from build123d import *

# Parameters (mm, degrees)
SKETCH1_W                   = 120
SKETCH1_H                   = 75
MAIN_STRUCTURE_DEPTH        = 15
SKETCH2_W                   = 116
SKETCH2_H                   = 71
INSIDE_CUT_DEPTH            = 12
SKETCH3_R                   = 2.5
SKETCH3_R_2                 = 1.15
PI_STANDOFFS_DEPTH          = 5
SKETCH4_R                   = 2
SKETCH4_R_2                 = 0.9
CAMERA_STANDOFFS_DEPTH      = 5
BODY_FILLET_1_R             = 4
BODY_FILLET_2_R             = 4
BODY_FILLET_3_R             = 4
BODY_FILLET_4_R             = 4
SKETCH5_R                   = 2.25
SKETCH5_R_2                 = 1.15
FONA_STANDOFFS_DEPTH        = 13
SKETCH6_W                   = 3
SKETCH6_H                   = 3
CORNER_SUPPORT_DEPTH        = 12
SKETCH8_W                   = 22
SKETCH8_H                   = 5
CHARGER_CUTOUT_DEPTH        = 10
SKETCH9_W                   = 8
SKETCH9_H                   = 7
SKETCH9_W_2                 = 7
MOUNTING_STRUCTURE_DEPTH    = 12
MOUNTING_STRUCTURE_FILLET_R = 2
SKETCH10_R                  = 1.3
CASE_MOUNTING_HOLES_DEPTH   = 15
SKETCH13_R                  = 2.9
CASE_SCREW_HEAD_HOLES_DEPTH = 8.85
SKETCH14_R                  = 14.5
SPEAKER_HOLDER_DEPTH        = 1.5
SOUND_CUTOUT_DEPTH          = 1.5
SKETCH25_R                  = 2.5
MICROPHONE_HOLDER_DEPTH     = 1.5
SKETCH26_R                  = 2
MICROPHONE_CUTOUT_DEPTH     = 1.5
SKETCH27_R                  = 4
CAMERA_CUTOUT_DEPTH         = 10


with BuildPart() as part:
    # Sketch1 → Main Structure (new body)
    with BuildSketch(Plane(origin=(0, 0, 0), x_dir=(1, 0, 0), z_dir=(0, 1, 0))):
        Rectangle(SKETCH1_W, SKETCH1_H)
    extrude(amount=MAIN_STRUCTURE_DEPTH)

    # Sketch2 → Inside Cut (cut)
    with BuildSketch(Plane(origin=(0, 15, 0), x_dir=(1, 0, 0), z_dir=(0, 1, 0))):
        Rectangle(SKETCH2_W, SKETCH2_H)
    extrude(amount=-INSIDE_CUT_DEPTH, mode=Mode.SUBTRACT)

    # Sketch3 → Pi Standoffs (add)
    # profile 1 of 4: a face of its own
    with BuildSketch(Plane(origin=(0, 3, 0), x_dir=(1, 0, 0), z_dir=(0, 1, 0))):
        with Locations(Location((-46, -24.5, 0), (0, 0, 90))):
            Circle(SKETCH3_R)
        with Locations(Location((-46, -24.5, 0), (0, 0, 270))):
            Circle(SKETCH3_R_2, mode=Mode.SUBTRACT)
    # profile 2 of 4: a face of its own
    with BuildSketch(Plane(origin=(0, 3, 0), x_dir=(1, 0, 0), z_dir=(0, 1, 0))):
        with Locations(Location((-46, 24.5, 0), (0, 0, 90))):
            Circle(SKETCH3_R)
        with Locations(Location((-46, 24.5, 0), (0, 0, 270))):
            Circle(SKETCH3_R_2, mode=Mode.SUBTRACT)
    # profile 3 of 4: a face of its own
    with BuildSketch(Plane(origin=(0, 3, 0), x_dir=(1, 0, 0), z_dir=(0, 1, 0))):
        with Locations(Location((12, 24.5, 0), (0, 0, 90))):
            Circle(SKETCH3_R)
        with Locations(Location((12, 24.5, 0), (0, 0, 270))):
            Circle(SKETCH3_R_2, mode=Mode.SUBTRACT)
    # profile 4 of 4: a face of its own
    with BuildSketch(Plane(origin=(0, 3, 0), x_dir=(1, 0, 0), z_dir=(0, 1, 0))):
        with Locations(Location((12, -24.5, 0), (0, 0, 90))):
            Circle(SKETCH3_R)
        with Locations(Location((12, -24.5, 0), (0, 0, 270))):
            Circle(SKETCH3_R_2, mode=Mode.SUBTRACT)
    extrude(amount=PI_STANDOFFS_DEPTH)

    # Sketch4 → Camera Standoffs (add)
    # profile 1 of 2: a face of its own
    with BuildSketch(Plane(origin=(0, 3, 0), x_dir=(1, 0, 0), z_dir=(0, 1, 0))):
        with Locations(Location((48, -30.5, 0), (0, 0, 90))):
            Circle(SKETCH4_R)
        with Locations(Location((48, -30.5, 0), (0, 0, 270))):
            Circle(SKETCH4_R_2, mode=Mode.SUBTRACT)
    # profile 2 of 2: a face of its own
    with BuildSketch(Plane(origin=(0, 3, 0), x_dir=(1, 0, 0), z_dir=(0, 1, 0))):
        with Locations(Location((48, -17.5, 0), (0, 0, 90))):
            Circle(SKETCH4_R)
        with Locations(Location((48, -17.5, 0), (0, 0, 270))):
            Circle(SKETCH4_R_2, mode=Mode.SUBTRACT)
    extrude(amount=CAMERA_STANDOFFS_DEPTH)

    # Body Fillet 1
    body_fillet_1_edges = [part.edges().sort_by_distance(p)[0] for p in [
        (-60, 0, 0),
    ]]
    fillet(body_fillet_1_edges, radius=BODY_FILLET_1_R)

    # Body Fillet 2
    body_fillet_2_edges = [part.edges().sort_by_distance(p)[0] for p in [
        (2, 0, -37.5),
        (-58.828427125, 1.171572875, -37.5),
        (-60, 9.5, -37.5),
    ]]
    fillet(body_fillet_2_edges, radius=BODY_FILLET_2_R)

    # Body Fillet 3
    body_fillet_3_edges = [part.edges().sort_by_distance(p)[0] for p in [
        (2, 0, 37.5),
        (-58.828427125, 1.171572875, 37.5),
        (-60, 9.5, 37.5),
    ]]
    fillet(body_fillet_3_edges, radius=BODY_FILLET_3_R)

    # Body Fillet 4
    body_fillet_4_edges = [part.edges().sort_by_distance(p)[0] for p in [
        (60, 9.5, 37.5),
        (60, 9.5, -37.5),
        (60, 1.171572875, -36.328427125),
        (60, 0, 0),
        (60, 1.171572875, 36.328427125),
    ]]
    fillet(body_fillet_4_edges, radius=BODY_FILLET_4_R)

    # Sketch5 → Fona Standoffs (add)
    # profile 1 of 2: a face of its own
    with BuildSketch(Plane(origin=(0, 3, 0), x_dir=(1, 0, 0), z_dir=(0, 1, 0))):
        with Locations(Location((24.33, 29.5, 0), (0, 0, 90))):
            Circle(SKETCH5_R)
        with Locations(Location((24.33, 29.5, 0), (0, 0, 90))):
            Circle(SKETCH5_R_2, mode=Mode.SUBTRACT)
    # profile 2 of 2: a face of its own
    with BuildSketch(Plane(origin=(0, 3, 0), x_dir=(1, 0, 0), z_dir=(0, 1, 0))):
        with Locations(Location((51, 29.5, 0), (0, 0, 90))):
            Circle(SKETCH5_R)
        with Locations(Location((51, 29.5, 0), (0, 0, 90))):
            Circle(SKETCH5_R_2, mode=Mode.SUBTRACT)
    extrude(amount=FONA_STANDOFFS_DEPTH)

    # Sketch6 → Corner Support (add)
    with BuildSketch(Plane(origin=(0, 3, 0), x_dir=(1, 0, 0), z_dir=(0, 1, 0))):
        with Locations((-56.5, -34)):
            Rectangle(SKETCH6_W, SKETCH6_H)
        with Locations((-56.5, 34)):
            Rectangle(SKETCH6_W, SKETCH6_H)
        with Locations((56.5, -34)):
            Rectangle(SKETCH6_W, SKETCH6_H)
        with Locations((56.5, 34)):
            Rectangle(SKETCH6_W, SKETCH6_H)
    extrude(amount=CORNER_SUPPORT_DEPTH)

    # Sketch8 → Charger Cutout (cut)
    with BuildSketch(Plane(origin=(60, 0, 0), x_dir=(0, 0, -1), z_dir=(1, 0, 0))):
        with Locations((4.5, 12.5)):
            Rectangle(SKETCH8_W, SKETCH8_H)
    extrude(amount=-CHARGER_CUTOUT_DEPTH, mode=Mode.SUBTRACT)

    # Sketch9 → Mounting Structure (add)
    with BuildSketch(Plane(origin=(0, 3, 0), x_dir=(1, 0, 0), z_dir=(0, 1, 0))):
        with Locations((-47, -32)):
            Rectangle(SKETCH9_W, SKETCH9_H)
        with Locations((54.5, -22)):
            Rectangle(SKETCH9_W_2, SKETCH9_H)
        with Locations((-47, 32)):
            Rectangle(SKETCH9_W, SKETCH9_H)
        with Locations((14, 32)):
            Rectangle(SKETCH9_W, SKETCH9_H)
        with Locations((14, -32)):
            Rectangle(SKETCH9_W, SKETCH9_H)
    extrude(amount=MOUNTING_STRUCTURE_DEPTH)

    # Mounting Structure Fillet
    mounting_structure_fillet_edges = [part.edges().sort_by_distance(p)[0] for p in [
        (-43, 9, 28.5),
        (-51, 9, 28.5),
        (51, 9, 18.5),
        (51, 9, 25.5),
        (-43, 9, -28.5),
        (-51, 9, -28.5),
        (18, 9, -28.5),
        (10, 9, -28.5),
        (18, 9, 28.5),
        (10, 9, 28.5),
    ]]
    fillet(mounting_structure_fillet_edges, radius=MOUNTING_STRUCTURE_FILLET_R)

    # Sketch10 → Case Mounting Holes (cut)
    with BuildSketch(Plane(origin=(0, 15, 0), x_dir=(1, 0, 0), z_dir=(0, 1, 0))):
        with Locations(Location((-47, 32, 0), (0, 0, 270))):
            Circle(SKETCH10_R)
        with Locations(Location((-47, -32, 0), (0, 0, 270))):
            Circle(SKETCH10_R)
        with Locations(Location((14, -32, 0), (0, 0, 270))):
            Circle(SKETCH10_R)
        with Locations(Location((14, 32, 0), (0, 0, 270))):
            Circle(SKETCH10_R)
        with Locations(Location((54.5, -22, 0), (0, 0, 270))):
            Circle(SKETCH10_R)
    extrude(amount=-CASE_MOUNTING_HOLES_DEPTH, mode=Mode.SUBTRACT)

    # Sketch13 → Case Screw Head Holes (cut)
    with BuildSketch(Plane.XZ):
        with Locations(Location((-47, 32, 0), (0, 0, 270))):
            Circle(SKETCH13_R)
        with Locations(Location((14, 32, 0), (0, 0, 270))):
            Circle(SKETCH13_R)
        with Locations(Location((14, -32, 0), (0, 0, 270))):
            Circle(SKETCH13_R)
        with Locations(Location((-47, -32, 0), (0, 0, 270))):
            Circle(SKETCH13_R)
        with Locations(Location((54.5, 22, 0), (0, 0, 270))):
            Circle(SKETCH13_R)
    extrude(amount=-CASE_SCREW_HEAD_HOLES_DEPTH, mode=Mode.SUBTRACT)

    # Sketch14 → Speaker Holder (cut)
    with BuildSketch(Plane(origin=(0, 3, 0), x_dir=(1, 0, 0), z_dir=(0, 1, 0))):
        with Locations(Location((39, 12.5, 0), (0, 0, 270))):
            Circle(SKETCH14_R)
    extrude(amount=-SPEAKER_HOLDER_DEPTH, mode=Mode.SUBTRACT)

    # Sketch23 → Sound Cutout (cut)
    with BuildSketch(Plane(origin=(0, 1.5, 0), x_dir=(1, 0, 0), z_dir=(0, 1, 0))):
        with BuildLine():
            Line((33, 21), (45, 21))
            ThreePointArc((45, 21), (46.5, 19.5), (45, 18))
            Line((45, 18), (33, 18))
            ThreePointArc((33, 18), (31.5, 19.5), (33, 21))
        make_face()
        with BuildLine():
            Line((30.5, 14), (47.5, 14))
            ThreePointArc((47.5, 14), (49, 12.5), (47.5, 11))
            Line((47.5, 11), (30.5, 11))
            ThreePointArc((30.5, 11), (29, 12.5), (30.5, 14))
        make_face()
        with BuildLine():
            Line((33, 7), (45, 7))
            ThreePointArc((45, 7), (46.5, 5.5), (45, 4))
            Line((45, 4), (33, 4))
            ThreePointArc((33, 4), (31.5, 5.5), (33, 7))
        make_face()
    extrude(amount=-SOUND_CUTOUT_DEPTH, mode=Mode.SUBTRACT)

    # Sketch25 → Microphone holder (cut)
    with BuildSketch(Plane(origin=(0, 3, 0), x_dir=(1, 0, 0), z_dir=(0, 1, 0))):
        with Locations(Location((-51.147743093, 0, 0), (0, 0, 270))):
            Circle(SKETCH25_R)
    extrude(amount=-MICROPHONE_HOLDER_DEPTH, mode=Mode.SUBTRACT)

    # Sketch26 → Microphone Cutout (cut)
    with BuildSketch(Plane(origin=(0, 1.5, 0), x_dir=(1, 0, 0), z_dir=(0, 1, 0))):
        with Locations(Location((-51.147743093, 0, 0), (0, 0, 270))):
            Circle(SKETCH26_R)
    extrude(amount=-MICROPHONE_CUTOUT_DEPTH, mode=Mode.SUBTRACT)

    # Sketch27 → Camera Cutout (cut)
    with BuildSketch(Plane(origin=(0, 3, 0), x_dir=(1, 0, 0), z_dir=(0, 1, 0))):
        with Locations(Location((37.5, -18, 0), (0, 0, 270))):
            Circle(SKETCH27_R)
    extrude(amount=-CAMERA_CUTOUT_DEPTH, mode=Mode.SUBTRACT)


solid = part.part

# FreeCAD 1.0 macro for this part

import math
import FreeCAD as App
import Part
import Sketcher
from FreeCAD import Vector
Q = App.Units.Quantity


def edges_at(feature, points):
    """Names of the edges that pass closest to the given points."""
    edges = feature.Shape.Edges
    near = lambda p: min(range(len(edges)), key=lambda i: edges[i].distToShape(Part.Vertex(*p))[0])
    return sorted({f"Edge{near(p) + 1}" for p in points})

doc = App.newDocument("Part")
body = doc.addObject("PartDesign::Body", "Body")

# Sketch on XZ plane
sketch1 = body.newObject("Sketcher::SketchObject", "Sketch")
sketch1.AttachmentSupport = (doc.getObject("XZ_Plane"), [""])
sketch1.MapMode = "FlatFace"
sketch1.addGeometry([
    Part.LineSegment(Vector(-60, -38, 0), Vector(-60, 38, 0)),
    Part.LineSegment(Vector(-60, 38, 0), Vector(60, 38, 0)),
    Part.LineSegment(Vector(60, 38, 0), Vector(60, -38, 0)),
    Part.LineSegment(Vector(60, -38, 0), Vector(-60, -38, 0)),
], False)
sketch1.addConstraint([
    Sketcher.Constraint("Coincident", 0, 2, 1, 1),
    Sketcher.Constraint("Coincident", 1, 2, 2, 1),
    Sketcher.Constraint("Coincident", 2, 2, 3, 1),
    Sketcher.Constraint("Coincident", 3, 2, 0, 1),
    Sketcher.Constraint("Vertical", 0),
    Sketcher.Constraint("Horizontal", 1),
    Sketcher.Constraint("Vertical", 2),
    Sketcher.Constraint("Horizontal", 3),
    Sketcher.Constraint("Symmetric", 0, 2, 2, 2, -1, 1),
    Sketcher.Constraint("DistanceX", 1, 1, 1, 2, Q("120 mm")),
    Sketcher.Constraint("DistanceY", 0, 1, 0, 2, Q("75 mm")),
])
pad1 = body.newObject("PartDesign::Pad", "Pad")
pad1.Profile = sketch1
pad1.Length = 15
pad1.Reversed = True

# Sketch on XZ plane
sketch2 = body.newObject("Sketcher::SketchObject", "Sketch001")
sketch2.AttachmentSupport = (doc.getObject("XZ_Plane"), [""])
sketch2.MapMode = "FlatFace"
sketch2.AttachmentOffset = App.Placement(Vector(0, 0, -15), App.Rotation())
sketch2.addGeometry([
    Part.LineSegment(Vector(-58, -36, 0), Vector(-58, 36, 0)),
    Part.LineSegment(Vector(-58, 36, 0), Vector(58, 36, 0)),
    Part.LineSegment(Vector(58, 36, 0), Vector(58, -36, 0)),
    Part.LineSegment(Vector(58, -36, 0), Vector(-58, -36, 0)),
], False)
sketch2.addConstraint([
    Sketcher.Constraint("Coincident", 0, 2, 1, 1),
    Sketcher.Constraint("Coincident", 1, 2, 2, 1),
    Sketcher.Constraint("Coincident", 2, 2, 3, 1),
    Sketcher.Constraint("Coincident", 3, 2, 0, 1),
    Sketcher.Constraint("Vertical", 0),
    Sketcher.Constraint("Horizontal", 1),
    Sketcher.Constraint("Vertical", 2),
    Sketcher.Constraint("Horizontal", 3),
    Sketcher.Constraint("Symmetric", 0, 2, 2, 2, -1, 1),
    Sketcher.Constraint("DistanceX", 1, 1, 1, 2, Q("116 mm")),
    Sketcher.Constraint("DistanceY", 0, 1, 0, 2, Q("71 mm")),
])
pocket1 = body.newObject("PartDesign::Pocket", "Pocket")
pocket1.Profile = sketch2
pocket1.Length = 12
pocket1.Reversed = True

# Sketch on XZ plane
sketch3 = body.newObject("Sketcher::SketchObject", "Sketch002")
sketch3.AttachmentSupport = (doc.getObject("XZ_Plane"), [""])
sketch3.MapMode = "FlatFace"
sketch3.AttachmentOffset = App.Placement(Vector(0, 0, -3), App.Rotation())
sketch3.addGeometry([
    Part.Circle(Vector(-46, 24.5, 0), Vector(0, 0, 1), 2.5),  # 0
    Part.Circle(Vector(-46, 24.5, 0), Vector(0, 0, 1), 1.1),  # 1
    Part.Circle(Vector(-46, -24.5, 0), Vector(0, 0, 1), 2.5),  # 2
    Part.Circle(Vector(-46, -24.5, 0), Vector(0, 0, 1), 1.1),  # 3
    Part.Circle(Vector(12, -24.5, 0), Vector(0, 0, 1), 2.5),  # 4
    Part.Circle(Vector(12, -24.5, 0), Vector(0, 0, 1), 1.1),  # 5
    Part.Circle(Vector(12, 24.5, 0), Vector(0, 0, 1), 2.5),  # 6
    Part.Circle(Vector(12, 24.5, 0), Vector(0, 0, 1), 1.1),  # 7
], False)
sketch3.addConstraint([
    Sketcher.Constraint("Coincident", 1, 3, 0, 3),
    Sketcher.Constraint("Coincident", 3, 3, 2, 3),
    Sketcher.Constraint("Coincident", 5, 3, 4, 3),
    Sketcher.Constraint("Coincident", 7, 3, 6, 3),
    Sketcher.Constraint("Equal", 0, 2),
    Sketcher.Constraint("Equal", 1, 3),
    Sketcher.Constraint("Equal", 2, 4),
    Sketcher.Constraint("Equal", 3, 5),
    Sketcher.Constraint("Equal", 4, 6),
    Sketcher.Constraint("Equal", 5, 7),
    Sketcher.Constraint("Symmetric", 0, 3, 2, 3, -1),
    Sketcher.Constraint("Symmetric", 4, 3, 6, 3, -1),
    Sketcher.Constraint("Horizontal", 3, 3, 4, 3),
    Sketcher.Constraint("Diameter", 0, Q("5 mm")),
    Sketcher.Constraint("Diameter", 1, Q("2.3 mm")),
    Sketcher.Constraint("DistanceX", 0, 3, -1, 1, Q("46 mm")),
    Sketcher.Constraint("DistanceX", -1, 1, 4, 3, Q("12 mm")),
    Sketcher.Constraint("DistanceY", 2, 3, 0, 3, Q("49 mm")),
])
pad2 = body.newObject("PartDesign::Pad", "Pad001")
pad2.Profile = sketch3
pad2.Length = 5
pad2.Reversed = True

# Sketch on XZ plane
sketch4 = body.newObject("Sketcher::SketchObject", "Sketch003")
sketch4.AttachmentSupport = (doc.getObject("XZ_Plane"), [""])
sketch4.MapMode = "FlatFace"
sketch4.AttachmentOffset = App.Placement(Vector(0, 0, -3), App.Rotation())
sketch4.addGeometry([
    Part.Circle(Vector(48, 30.5, 0), Vector(0, 0, 1), 2),
    Part.Circle(Vector(48, 30.5, 0), Vector(0, 0, 1), 0.9),
    Part.Circle(Vector(48, 17.5, 0), Vector(0, 0, 1), 2),
    Part.Circle(Vector(48, 17.5, 0), Vector(0, 0, 1), 0.9),
], False)
sketch4.addConstraint([
    Sketcher.Constraint("Coincident", 1, 3, 0, 3),
    Sketcher.Constraint("Coincident", 3, 3, 2, 3),
    Sketcher.Constraint("Equal", 0, 2),
    Sketcher.Constraint("Equal", 1, 3),
    Sketcher.Constraint("Vertical", 1, 3, 2, 3),
    Sketcher.Constraint("Diameter", 0, Q("4 mm")),
    Sketcher.Constraint("Diameter", 1, Q("1.8 mm")),
    Sketcher.Constraint("DistanceX", -1, 1, 0, 3, Q("48 mm")),
    Sketcher.Constraint("DistanceY", 2, 3, 0, 3, Q("13 mm")),
    Sketcher.Constraint("DistanceY", -1, 1, 0, 3, Q("30.5 mm")),
])
pad3 = body.newObject("PartDesign::Pad", "Pad002")
pad3.Profile = sketch4
pad3.Length = 5
pad3.Reversed = True
doc.recompute()

fillet = body.newObject("PartDesign::Fillet", "Fillet")
fillet.Base = (pad3, edges_at(pad3, [(-60, 0, 0)]))
fillet.Radius = 4
doc.recompute()

fillet2 = body.newObject("PartDesign::Fillet", "Fillet001")
fillet2.Base = (fillet, edges_at(fillet, [(2, 0, -37.5), (-58.828, 1.172, -37.5), (-60, 9.5, -37.5)]))
fillet2.Radius = 4
doc.recompute()

fillet3 = body.newObject("PartDesign::Fillet", "Fillet002")
fillet3.Base = (fillet2, edges_at(fillet2, [(2, 0, 37.5), (-58.828, 1.172, 37.5), (-60, 9.5, 37.5)]))
fillet3.Radius = 4
doc.recompute()

fillet4 = body.newObject("PartDesign::Fillet", "Fillet003")
fillet4.Base = (fillet3, edges_at(fillet3, [
    (60, 9.5, 37.5),
    (60, 9.5, -37.5),
    (60, 1.172, -36.328),
    (60, 0, 0),
    (60, 1.172, 36.328),
]))
fillet4.Radius = 4

# Sketch on XZ plane
sketch5 = body.newObject("Sketcher::SketchObject", "Sketch004")
sketch5.AttachmentSupport = (doc.getObject("XZ_Plane"), [""])
sketch5.MapMode = "FlatFace"
sketch5.AttachmentOffset = App.Placement(Vector(0, 0, -3), App.Rotation())
sketch5.addGeometry([
    Part.Circle(Vector(24.3, -29.5, 0), Vector(0, 0, 1), 2.2),
    Part.Circle(Vector(24.3, -29.5, 0), Vector(0, 0, 1), 1.1),
    Part.Circle(Vector(51, -29.5, 0), Vector(0, 0, 1), 2.2),
    Part.Circle(Vector(51, -29.5, 0), Vector(0, 0, 1), 1.1),
], False)
sketch5.addConstraint([
    Sketcher.Constraint("Coincident", 1, 3, 0, 3),
    Sketcher.Constraint("Coincident", 3, 3, 2, 3),
    Sketcher.Constraint("Equal", 0, 2),
    Sketcher.Constraint("Equal", 1, 3),
    Sketcher.Constraint("Horizontal", 1, 3, 2, 3),
    Sketcher.Constraint("Diameter", 0, Q("4.5 mm")),
    Sketcher.Constraint("Diameter", 1, Q("2.3 mm")),
    Sketcher.Constraint("DistanceX", -1, 1, 2, 3, Q("51 mm")),
    Sketcher.Constraint("DistanceY", 0, 3, -1, 1, Q("29.5 mm")),
    Sketcher.Constraint("DistanceX", -1, 1, 0, 3, Q("24.33 mm")),
])
pad4 = body.newObject("PartDesign::Pad", "Pad003")
pad4.Profile = sketch5
pad4.Length = 13
pad4.Reversed = True

# Sketch on XZ plane
sketch6 = body.newObject("Sketcher::SketchObject", "Sketch005")
sketch6.AttachmentSupport = (doc.getObject("XZ_Plane"), [""])
sketch6.MapMode = "FlatFace"
sketch6.AttachmentOffset = App.Placement(Vector(0, 0, -3), App.Rotation())
sketch6.addGeometry([
    Part.LineSegment(Vector(-58, 32.5, 0), Vector(-58, 35.5, 0)),  # 0
    Part.LineSegment(Vector(-58, 35.5, 0), Vector(-55, 35.5, 0)),  # 1
    Part.LineSegment(Vector(-55, 35.5, 0), Vector(-55, 32.5, 0)),  # 2
    Part.LineSegment(Vector(-55, 32.5, 0), Vector(-58, 32.5, 0)),  # 3
    Part.LineSegment(Vector(-58, -35.5, 0), Vector(-58, -32.5, 0)),  # 4
    Part.LineSegment(Vector(-58, -32.5, 0), Vector(-55, -32.5, 0)),  # 5
    Part.LineSegment(Vector(-55, -32.5, 0), Vector(-55, -35.5, 0)),  # 6
    Part.LineSegment(Vector(-55, -35.5, 0), Vector(-58, -35.5, 0)),  # 7
    Part.LineSegment(Vector(55, 32.5, 0), Vector(55, 35.5, 0)),  # 8
    Part.LineSegment(Vector(55, 35.5, 0), Vector(58, 35.5, 0)),  # 9
    Part.LineSegment(Vector(58, 35.5, 0), Vector(58, 32.5, 0)),  # 10
    Part.LineSegment(Vector(58, 32.5, 0), Vector(55, 32.5, 0)),  # 11
    Part.LineSegment(Vector(55, -35.5, 0), Vector(55, -32.5, 0)),  # 12
    Part.LineSegment(Vector(55, -32.5, 0), Vector(58, -32.5, 0)),  # 13
    Part.LineSegment(Vector(58, -32.5, 0), Vector(58, -35.5, 0)),  # 14
    Part.LineSegment(Vector(58, -35.5, 0), Vector(55, -35.5, 0)),  # 15
], False)
sketch6.addConstraint([
    Sketcher.Constraint("Coincident", 0, 2, 1, 1),
    Sketcher.Constraint("Coincident", 1, 2, 2, 1),
    Sketcher.Constraint("Coincident", 2, 2, 3, 1),
    Sketcher.Constraint("Coincident", 3, 2, 0, 1),
    Sketcher.Constraint("Coincident", 4, 2, 5, 1),
    Sketcher.Constraint("Coincident", 5, 2, 6, 1),
    Sketcher.Constraint("Coincident", 6, 2, 7, 1),
    Sketcher.Constraint("Coincident", 7, 2, 4, 1),
    Sketcher.Constraint("Coincident", 8, 2, 9, 1),
    Sketcher.Constraint("Coincident", 9, 2, 10, 1),
    Sketcher.Constraint("Coincident", 10, 2, 11, 1),
    Sketcher.Constraint("Coincident", 11, 2, 8, 1),
    Sketcher.Constraint("Coincident", 12, 2, 13, 1),
    Sketcher.Constraint("Coincident", 13, 2, 14, 1),
    Sketcher.Constraint("Coincident", 14, 2, 15, 1),
    Sketcher.Constraint("Coincident", 15, 2, 12, 1),
    Sketcher.Constraint("Vertical", 0),
    Sketcher.Constraint("Horizontal", 1),
    Sketcher.Constraint("Vertical", 2),
    Sketcher.Constraint("Horizontal", 3),
    Sketcher.Constraint("Vertical", 4),
    Sketcher.Constraint("Horizontal", 5),
    Sketcher.Constraint("Vertical", 6),
    Sketcher.Constraint("Horizontal", 7),
    Sketcher.Constraint("Vertical", 8),
    Sketcher.Constraint("Horizontal", 9),
    Sketcher.Constraint("Vertical", 10),
    Sketcher.Constraint("Horizontal", 11),
    Sketcher.Constraint("Vertical", 12),
    Sketcher.Constraint("Horizontal", 13),
    Sketcher.Constraint("Vertical", 14),
    Sketcher.Constraint("Horizontal", 15),
    Sketcher.Constraint("Symmetric", 6, 2, 8, 2, -1, 1),
    Sketcher.Constraint("Symmetric", 4, 2, 10, 2, -1, 1),
    Sketcher.Constraint("Symmetric", 2, 2, 12, 2, -1, 1),
    Sketcher.Constraint("Symmetric", 0, 2, 14, 2, -1, 1),
    Sketcher.Constraint("Symmetric", 1, 2, 8, 2, -2),
    Sketcher.Constraint("Symmetric", 3, 2, 10, 2, -2),
    Sketcher.Constraint("Equal", 15, 0),
    Sketcher.Constraint("DistanceX", 1, 1, 1, 2, Q("3 mm")),
    Sketcher.Constraint("DistanceX", 0, 2, -1, 1, Q("58 mm")),
    Sketcher.Constraint("DistanceY", 4, 2, 3, 2, Q("65 mm")),
])
pad5 = body.newObject("PartDesign::Pad", "Pad004")
pad5.Profile = sketch6
pad5.Length = 12
pad5.Reversed = True

# Sketch on YZ plane
sketch7 = body.newObject("Sketcher::SketchObject", "Sketch006")
sketch7.AttachmentSupport = (doc.getObject("YZ_Plane"), [""])
sketch7.MapMode = "FlatFace"
sketch7.AttachmentOffset = App.Placement(Vector(0, 0, 60), App.Rotation())
sketch7.addGeometry([
    Part.LineSegment(Vector(15, 6, 0), Vector(10, 6, 0)),
    Part.LineSegment(Vector(10, 6, 0), Vector(10, -16, 0)),
    Part.LineSegment(Vector(10, -16, 0), Vector(15, -16, 0)),
    Part.LineSegment(Vector(15, -16, 0), Vector(15, 6, 0)),
], False)
sketch7.addConstraint([
    Sketcher.Constraint("Coincident", 0, 2, 1, 1),
    Sketcher.Constraint("Coincident", 1, 2, 2, 1),
    Sketcher.Constraint("Coincident", 2, 2, 3, 1),
    Sketcher.Constraint("Coincident", 3, 2, 0, 1),
    Sketcher.Constraint("Horizontal", 0),
    Sketcher.Constraint("Vertical", 1),
    Sketcher.Constraint("Horizontal", 2),
    Sketcher.Constraint("Vertical", 3),
    Sketcher.Constraint("DistanceX", 0, 2, 0, 1, Q("5 mm")),
    Sketcher.Constraint("DistanceY", 1, 2, 1, 1, Q("22 mm")),
    Sketcher.Constraint("DistanceX", -1, 1, 0, 2, Q("10 mm")),
    Sketcher.Constraint("DistanceY", -1, 1, 0, 2, Q("6.5 mm")),
])
pocket2 = body.newObject("PartDesign::Pocket", "Pocket001")
pocket2.Profile = sketch7
pocket2.Length = 10

# Sketch on XZ plane
sketch8 = body.newObject("Sketcher::SketchObject", "Sketch007")
sketch8.AttachmentSupport = (doc.getObject("XZ_Plane"), [""])
sketch8.MapMode = "FlatFace"
sketch8.AttachmentOffset = App.Placement(Vector(0, 0, -3), App.Rotation())
sketch8.addGeometry([
    Part.LineSegment(Vector(-51, 28, 0), Vector(-51, 36, 0)),  # 0
    Part.LineSegment(Vector(-51, 36, 0), Vector(-43, 36, 0)),  # 1
    Part.LineSegment(Vector(-43, 36, 0), Vector(-43, 28, 0)),  # 2
    Part.LineSegment(Vector(-43, 28, 0), Vector(-51, 28, 0)),  # 3
    Part.LineSegment(Vector(51, 18, 0), Vector(51, 26, 0)),  # 4
    Part.LineSegment(Vector(51, 26, 0), Vector(58, 26, 0)),  # 5
    Part.LineSegment(Vector(58, 26, 0), Vector(58, 18, 0)),  # 6
    Part.LineSegment(Vector(58, 18, 0), Vector(51, 18, 0)),  # 7
    Part.LineSegment(Vector(-51, -36, 0), Vector(-51, -28, 0)),  # 8
    Part.LineSegment(Vector(-51, -28, 0), Vector(-43, -28, 0)),  # 9
    Part.LineSegment(Vector(-43, -28, 0), Vector(-43, -36, 0)),  # 10
    Part.LineSegment(Vector(-43, -36, 0), Vector(-51, -36, 0)),  # 11
    Part.LineSegment(Vector(10, -36, 0), Vector(10, -28, 0)),  # 12
    Part.LineSegment(Vector(10, -28, 0), Vector(18, -28, 0)),  # 13
    Part.LineSegment(Vector(18, -28, 0), Vector(18, -36, 0)),  # 14
    Part.LineSegment(Vector(18, -36, 0), Vector(10, -36, 0)),  # 15
    Part.LineSegment(Vector(10, 28, 0), Vector(10, 36, 0)),  # 16
    Part.LineSegment(Vector(10, 36, 0), Vector(18, 36, 0)),  # 17
    Part.LineSegment(Vector(18, 36, 0), Vector(18, 28, 0)),  # 18
    Part.LineSegment(Vector(18, 28, 0), Vector(10, 28, 0)),  # 19
], False)
sketch8.addConstraint([
    Sketcher.Constraint("Coincident", 0, 2, 1, 1),
    Sketcher.Constraint("Coincident", 1, 2, 2, 1),
    Sketcher.Constraint("Coincident", 2, 2, 3, 1),
    Sketcher.Constraint("Coincident", 3, 2, 0, 1),
    Sketcher.Constraint("Coincident", 4, 2, 5, 1),
    Sketcher.Constraint("Coincident", 5, 2, 6, 1),
    Sketcher.Constraint("Coincident", 6, 2, 7, 1),
    Sketcher.Constraint("Coincident", 7, 2, 4, 1),
    Sketcher.Constraint("Coincident", 8, 2, 9, 1),
    Sketcher.Constraint("Coincident", 9, 2, 10, 1),
    Sketcher.Constraint("Coincident", 10, 2, 11, 1),
    Sketcher.Constraint("Coincident", 11, 2, 8, 1),
    Sketcher.Constraint("Coincident", 12, 2, 13, 1),
    Sketcher.Constraint("Coincident", 13, 2, 14, 1),
    Sketcher.Constraint("Coincident", 14, 2, 15, 1),
    Sketcher.Constraint("Coincident", 15, 2, 12, 1),
    Sketcher.Constraint("Coincident", 16, 2, 17, 1),
    Sketcher.Constraint("Coincident", 17, 2, 18, 1),
    Sketcher.Constraint("Coincident", 18, 2, 19, 1),
    Sketcher.Constraint("Coincident", 19, 2, 16, 1),
    Sketcher.Constraint("Vertical", 0),
    Sketcher.Constraint("Horizontal", 1),
    Sketcher.Constraint("Vertical", 2),
    Sketcher.Constraint("Horizontal", 3),
    Sketcher.Constraint("Vertical", 4),
    Sketcher.Constraint("Horizontal", 5),
    Sketcher.Constraint("Vertical", 6),
    Sketcher.Constraint("Horizontal", 7),
    Sketcher.Constraint("Vertical", 8),
    Sketcher.Constraint("Horizontal", 9),
    Sketcher.Constraint("Vertical", 10),
    Sketcher.Constraint("Horizontal", 11),
    Sketcher.Constraint("Vertical", 12),
    Sketcher.Constraint("Horizontal", 13),
    Sketcher.Constraint("Vertical", 14),
    Sketcher.Constraint("Horizontal", 15),
    Sketcher.Constraint("Vertical", 16),
    Sketcher.Constraint("Horizontal", 17),
    Sketcher.Constraint("Vertical", 18),
    Sketcher.Constraint("Horizontal", 19),
    Sketcher.Constraint("Symmetric", 3, 2, 8, 2, -1),
    Sketcher.Constraint("Symmetric", 1, 2, 10, 2, -1),
    Sketcher.Constraint("Symmetric", 15, 2, 16, 2, -1),
    Sketcher.Constraint("Symmetric", 13, 2, 18, 2, -1),
    Sketcher.Constraint("Horizontal", 9, 2, 12, 2),
    Sketcher.Constraint("Horizontal", 11, 2, 14, 2),
    Sketcher.Constraint("Equal", 11, 13),
    Sketcher.Constraint("Equal", 7, 0),
    Sketcher.Constraint("Equal", 2, 4),
    Sketcher.Constraint("DistanceX", 1, 1, 1, 2, Q("8 mm")),
    Sketcher.Constraint("DistanceX", 5, 1, 5, 2, Q("7 mm")),
    Sketcher.Constraint("DistanceX", 0, 2, -1, 1, Q("51 mm")),
    Sketcher.Constraint("DistanceX", -1, 1, 4, 2, Q("51 mm")),
    Sketcher.Constraint("DistanceX", -1, 1, 12, 2, Q("10 mm")),
    Sketcher.Constraint("DistanceY", 4, 2, 2, 2, Q("3 mm")),
    Sketcher.Constraint("DistanceY", 8, 2, 3, 2, Q("57 mm")),
])
pad6 = body.newObject("PartDesign::Pad", "Pad005")
pad6.Profile = sketch8
pad6.Length = 12
pad6.Reversed = True
doc.recompute()

fillet5 = body.newObject("PartDesign::Fillet", "Fillet004")
fillet5.Base = (pad6, edges_at(pad6, [
    (-43, 9, 28.5),
    (-51, 9, 28.5),
    (51, 9, 18.5),
    (51, 9, 25.5),
    (-43, 9, -28.5),
    (-51, 9, -28.5),
    (18, 9, -28.5),
    (10, 9, -28.5),
    (18, 9, 28.5),
    (10, 9, 28.5),
]))
fillet5.Radius = 2

# Sketch on XZ plane
sketch9 = body.newObject("Sketcher::SketchObject", "Sketch008")
sketch9.AttachmentSupport = (doc.getObject("XZ_Plane"), [""])
sketch9.MapMode = "FlatFace"
sketch9.AttachmentOffset = App.Placement(Vector(0, 0, -15), App.Rotation())
sketch9.addGeometry([
    Part.Circle(Vector(-47, -32, 0), Vector(0, 0, 1), 1.3),  # 0
    Part.Circle(Vector(-47, 32, 0), Vector(0, 0, 1), 1.3),  # 1
    Part.Circle(Vector(14, 32, 0), Vector(0, 0, 1), 1.3),  # 2
    Part.Circle(Vector(14, -32, 0), Vector(0, 0, 1), 1.3),  # 3
    Part.Circle(Vector(54.5, 22, 0), Vector(0, 0, 1), 1.3),  # 4
], False)
sketch9.addConstraint([
    Sketcher.Constraint("Equal", 0, 1),
    Sketcher.Constraint("Equal", 1, 2),
    Sketcher.Constraint("Equal", 2, 3),
    Sketcher.Constraint("Equal", 3, 4),
    Sketcher.Constraint("Symmetric", 0, 3, 1, 3, -1),
    Sketcher.Constraint("Symmetric", 2, 3, 3, 3, -1),
    Sketcher.Constraint("Horizontal", 1, 3, 2, 3),
    Sketcher.Constraint("Diameter", 0, Q("2.6 mm")),
    Sketcher.Constraint("DistanceX", 0, 3, -1, 1, Q("47 mm")),
    Sketcher.Constraint("DistanceY", 0, 3, -1, 1, Q("32 mm")),
    Sketcher.Constraint("DistanceX", -1, 1, 2, 3, Q("14 mm")),
    Sketcher.Constraint("DistanceY", -1, 1, 4, 3, Q("22 mm")),
    Sketcher.Constraint("DistanceX", -1, 1, 4, 3, Q("54.5 mm")),
])
pocket3 = body.newObject("PartDesign::Pocket", "Pocket002")
pocket3.Profile = sketch9
pocket3.Length = 15
pocket3.Reversed = True

# Sketch on XZ plane
sketch10 = body.newObject("Sketcher::SketchObject", "Sketch009")
sketch10.AttachmentSupport = (doc.getObject("XZ_Plane"), [""])
sketch10.MapMode = "FlatFace"
sketch10.addGeometry([
    Part.Circle(Vector(-47, 32, 0), Vector(0, 0, 1), 2.9),  # 0
    Part.Circle(Vector(14, 32, 0), Vector(0, 0, 1), 2.9),  # 1
    Part.Circle(Vector(14, -32, 0), Vector(0, 0, 1), 2.9),  # 2
    Part.Circle(Vector(-47, -32, 0), Vector(0, 0, 1), 2.9),  # 3
    Part.Circle(Vector(54.5, 22, 0), Vector(0, 0, 1), 2.9),  # 4
], False)
sketch10.addConstraint([
    Sketcher.Constraint("Equal", 0, 1),
    Sketcher.Constraint("Equal", 1, 2),
    Sketcher.Constraint("Equal", 2, 3),
    Sketcher.Constraint("Equal", 3, 4),
    Sketcher.Constraint("Symmetric", 1, 3, 2, 3, -1),
    Sketcher.Constraint("Symmetric", 0, 3, 3, 3, -1),
    Sketcher.Constraint("Horizontal", 0, 3, 1, 3),
    Sketcher.Constraint("Diameter", 0, Q("5.8 mm")),
    Sketcher.Constraint("DistanceX", 0, 3, -1, 1, Q("47 mm")),
    Sketcher.Constraint("DistanceY", -1, 1, 0, 3, Q("32 mm")),
    Sketcher.Constraint("DistanceX", -1, 1, 1, 3, Q("14 mm")),
    Sketcher.Constraint("DistanceY", -1, 1, 4, 3, Q("22 mm")),
    Sketcher.Constraint("DistanceX", -1, 1, 4, 3, Q("54.5 mm")),
])
pocket4 = body.newObject("PartDesign::Pocket", "Pocket003")
pocket4.Profile = sketch10
pocket4.Length = 8.85

# Sketch on XZ plane
sketch11 = body.newObject("Sketcher::SketchObject", "Sketch010")
sketch11.AttachmentSupport = (doc.getObject("XZ_Plane"), [""])
sketch11.MapMode = "FlatFace"
sketch11.AttachmentOffset = App.Placement(Vector(0, 0, -3), App.Rotation())
sketch11.addGeometry(Part.Circle(Vector(39, -12, 0), Vector(0, 0, 1), 14), False)
sketch11.addConstraint([
    Sketcher.Constraint("Diameter", 0, Q("29 mm")),
    Sketcher.Constraint("DistanceX", -1, 1, 0, 3, Q("39 mm")),
    Sketcher.Constraint("DistanceY", 0, 3, -1, 1, Q("12.5 mm")),
])
pocket5 = body.newObject("PartDesign::Pocket", "Pocket004")
pocket5.Profile = sketch11
pocket5.Length = 1.5
pocket5.Reversed = True

# Sketch on XZ plane
sketch12 = body.newObject("Sketcher::SketchObject", "Sketch011")
sketch12.AttachmentSupport = (doc.getObject("XZ_Plane"), [""])
sketch12.MapMode = "FlatFace"
sketch12.AttachmentOffset = App.Placement(Vector(0, 0, -1.5), App.Rotation())
sketch12.addGeometry([
    Part.LineSegment(Vector(45, -21, 0), Vector(33, -21, 0)),  # 0
    Part.ArcOfCircle(Part.Circle(Vector(33, -19.5, 0), Vector(0, 0, 1), 1.5), math.radians(90), math.radians(270)),  # 1
    Part.LineSegment(Vector(33, -18, 0), Vector(45, -18, 0)),  # 2
    Part.ArcOfCircle(Part.Circle(Vector(45, -19.5, 0), Vector(0, 0, 1), 1.5), math.radians(-90), math.radians(90)),  # 3
    Part.LineSegment(Vector(47.5, -14, 0), Vector(30.5, -14, 0)),  # 4
    Part.ArcOfCircle(Part.Circle(Vector(30.5, -12.5, 0), Vector(0, 0, 1), 1.5), math.radians(90), math.radians(270)),  # 5
    Part.LineSegment(Vector(30.5, -11, 0), Vector(47.5, -11, 0)),  # 6
    Part.ArcOfCircle(Part.Circle(Vector(47.5, -12.5, 0), Vector(0, 0, 1), 1.5), math.radians(-90), math.radians(90)),  # 7
    Part.LineSegment(Vector(45, -7, 0), Vector(33, -7, 0)),  # 8
    Part.ArcOfCircle(Part.Circle(Vector(33, -5.5, 0), Vector(0, 0, 1), 1.5), math.radians(90), math.radians(270)),  # 9
    Part.LineSegment(Vector(33, -4, 0), Vector(45, -4, 0)),  # 10
    Part.ArcOfCircle(Part.Circle(Vector(45, -5.5, 0), Vector(0, 0, 1), 1.5), math.radians(-90), math.radians(90)),  # 11
], False)
sketch12.addConstraint([
    Sketcher.Constraint("Tangent", 0, 2, 1, 2),
    Sketcher.Constraint("Tangent", 1, 1, 2, 1),
    Sketcher.Constraint("Tangent", 2, 2, 3, 2),
    Sketcher.Constraint("Tangent", 3, 1, 0, 1),
    Sketcher.Constraint("Tangent", 4, 2, 5, 2),
    Sketcher.Constraint("Tangent", 5, 1, 6, 1),
    Sketcher.Constraint("Tangent", 6, 2, 7, 2),
    Sketcher.Constraint("Tangent", 7, 1, 4, 1),
    Sketcher.Constraint("Tangent", 8, 2, 9, 2),
    Sketcher.Constraint("Tangent", 9, 1, 10, 1),
    Sketcher.Constraint("Tangent", 10, 2, 11, 2),
    Sketcher.Constraint("Tangent", 11, 1, 8, 1),
    Sketcher.Constraint("Horizontal", 0),
    Sketcher.Constraint("Horizontal", 2),
    Sketcher.Constraint("Horizontal", 4),
    Sketcher.Constraint("Horizontal", 6),
    Sketcher.Constraint("Horizontal", 8),
    Sketcher.Constraint("Horizontal", 10),
    Sketcher.Constraint("Equal", 3, 5),
    Sketcher.Constraint("Equal", 7, 9),
    Sketcher.Constraint("Vertical", 1, 3, 9, 3),
    Sketcher.Constraint("Vertical", 3, 3, 11, 3),
    Sketcher.Constraint("Radius", 1, Q("1.5 mm")),
    Sketcher.Constraint("DistanceX", 0, 2, 0, 1, Q("12 mm")),
    Sketcher.Constraint("DistanceX", 4, 2, 4, 1, Q("17 mm")),
    Sketcher.Constraint("DistanceX", -1, 1, 1, 3, Q("33 mm")),
    Sketcher.Constraint("DistanceY", 0, 2, -1, 1, Q("21 mm")),
    Sketcher.Constraint("DistanceY", 4, 2, -1, 1, Q("14 mm")),
    Sketcher.Constraint("DistanceY", 8, 2, -1, 1, Q("7 mm")),
    Sketcher.Constraint("DistanceX", -1, 1, 5, 3, Q("30.5 mm")),
])
pocket6 = body.newObject("PartDesign::Pocket", "Pocket005")
pocket6.Profile = sketch12
pocket6.Length = 1.5
pocket6.Reversed = True

# Sketch on XZ plane
sketch13 = body.newObject("Sketcher::SketchObject", "Sketch012")
sketch13.AttachmentSupport = (doc.getObject("XZ_Plane"), [""])
sketch13.MapMode = "FlatFace"
sketch13.AttachmentOffset = App.Placement(Vector(0, 0, -3), App.Rotation())
sketch13.addGeometry(Part.Circle(Vector(-51.1, 0, 0), Vector(0, 0, 1), 2.5), False)
sketch13.addConstraint([
    Sketcher.Constraint("PointOnObject", 0, 3, -1),
    Sketcher.Constraint("Diameter", 0, Q("5 mm")),
    Sketcher.Constraint("DistanceX", 0, 3, -1, 1, Q("51.147743 mm")),
])
pocket7 = body.newObject("PartDesign::Pocket", "Pocket006")
pocket7.Profile = sketch13
pocket7.Length = 1.5
pocket7.Reversed = True

# Sketch on XZ plane
sketch14 = body.newObject("Sketcher::SketchObject", "Sketch013")
sketch14.AttachmentSupport = (doc.getObject("XZ_Plane"), [""])
sketch14.MapMode = "FlatFace"
sketch14.AttachmentOffset = App.Placement(Vector(0, 0, -1.5), App.Rotation())
sketch14.addGeometry(Part.Circle(Vector(-51.1, 0, 0), Vector(0, 0, 1), 2), False)
sketch14.addConstraint([
    Sketcher.Constraint("PointOnObject", 0, 3, -1),
    Sketcher.Constraint("Diameter", 0, Q("4 mm")),
    Sketcher.Constraint("DistanceX", 0, 3, -1, 1, Q("51.147743 mm")),
])
pocket8 = body.newObject("PartDesign::Pocket", "Pocket007")
pocket8.Profile = sketch14
pocket8.Length = 1.5
pocket8.Reversed = True

# Sketch on XZ plane
sketch15 = body.newObject("Sketcher::SketchObject", "Sketch014")
sketch15.AttachmentSupport = (doc.getObject("XZ_Plane"), [""])
sketch15.MapMode = "FlatFace"
sketch15.AttachmentOffset = App.Placement(Vector(0, 0, -3), App.Rotation())
sketch15.addGeometry(Part.Circle(Vector(37.5, 18, 0), Vector(0, 0, 1), 4), False)
sketch15.addConstraint([
    Sketcher.Constraint("Diameter", 0, Q("8 mm")),
    Sketcher.Constraint("DistanceY", -1, 1, 0, 3, Q("18 mm")),
    Sketcher.Constraint("DistanceX", -1, 1, 0, 3, Q("37.5 mm")),
])
pocket9 = body.newObject("PartDesign::Pocket", "Pocket008")
pocket9.Profile = sketch15
pocket9.Length = 10
pocket9.Reversed = True

doc.recompute()
